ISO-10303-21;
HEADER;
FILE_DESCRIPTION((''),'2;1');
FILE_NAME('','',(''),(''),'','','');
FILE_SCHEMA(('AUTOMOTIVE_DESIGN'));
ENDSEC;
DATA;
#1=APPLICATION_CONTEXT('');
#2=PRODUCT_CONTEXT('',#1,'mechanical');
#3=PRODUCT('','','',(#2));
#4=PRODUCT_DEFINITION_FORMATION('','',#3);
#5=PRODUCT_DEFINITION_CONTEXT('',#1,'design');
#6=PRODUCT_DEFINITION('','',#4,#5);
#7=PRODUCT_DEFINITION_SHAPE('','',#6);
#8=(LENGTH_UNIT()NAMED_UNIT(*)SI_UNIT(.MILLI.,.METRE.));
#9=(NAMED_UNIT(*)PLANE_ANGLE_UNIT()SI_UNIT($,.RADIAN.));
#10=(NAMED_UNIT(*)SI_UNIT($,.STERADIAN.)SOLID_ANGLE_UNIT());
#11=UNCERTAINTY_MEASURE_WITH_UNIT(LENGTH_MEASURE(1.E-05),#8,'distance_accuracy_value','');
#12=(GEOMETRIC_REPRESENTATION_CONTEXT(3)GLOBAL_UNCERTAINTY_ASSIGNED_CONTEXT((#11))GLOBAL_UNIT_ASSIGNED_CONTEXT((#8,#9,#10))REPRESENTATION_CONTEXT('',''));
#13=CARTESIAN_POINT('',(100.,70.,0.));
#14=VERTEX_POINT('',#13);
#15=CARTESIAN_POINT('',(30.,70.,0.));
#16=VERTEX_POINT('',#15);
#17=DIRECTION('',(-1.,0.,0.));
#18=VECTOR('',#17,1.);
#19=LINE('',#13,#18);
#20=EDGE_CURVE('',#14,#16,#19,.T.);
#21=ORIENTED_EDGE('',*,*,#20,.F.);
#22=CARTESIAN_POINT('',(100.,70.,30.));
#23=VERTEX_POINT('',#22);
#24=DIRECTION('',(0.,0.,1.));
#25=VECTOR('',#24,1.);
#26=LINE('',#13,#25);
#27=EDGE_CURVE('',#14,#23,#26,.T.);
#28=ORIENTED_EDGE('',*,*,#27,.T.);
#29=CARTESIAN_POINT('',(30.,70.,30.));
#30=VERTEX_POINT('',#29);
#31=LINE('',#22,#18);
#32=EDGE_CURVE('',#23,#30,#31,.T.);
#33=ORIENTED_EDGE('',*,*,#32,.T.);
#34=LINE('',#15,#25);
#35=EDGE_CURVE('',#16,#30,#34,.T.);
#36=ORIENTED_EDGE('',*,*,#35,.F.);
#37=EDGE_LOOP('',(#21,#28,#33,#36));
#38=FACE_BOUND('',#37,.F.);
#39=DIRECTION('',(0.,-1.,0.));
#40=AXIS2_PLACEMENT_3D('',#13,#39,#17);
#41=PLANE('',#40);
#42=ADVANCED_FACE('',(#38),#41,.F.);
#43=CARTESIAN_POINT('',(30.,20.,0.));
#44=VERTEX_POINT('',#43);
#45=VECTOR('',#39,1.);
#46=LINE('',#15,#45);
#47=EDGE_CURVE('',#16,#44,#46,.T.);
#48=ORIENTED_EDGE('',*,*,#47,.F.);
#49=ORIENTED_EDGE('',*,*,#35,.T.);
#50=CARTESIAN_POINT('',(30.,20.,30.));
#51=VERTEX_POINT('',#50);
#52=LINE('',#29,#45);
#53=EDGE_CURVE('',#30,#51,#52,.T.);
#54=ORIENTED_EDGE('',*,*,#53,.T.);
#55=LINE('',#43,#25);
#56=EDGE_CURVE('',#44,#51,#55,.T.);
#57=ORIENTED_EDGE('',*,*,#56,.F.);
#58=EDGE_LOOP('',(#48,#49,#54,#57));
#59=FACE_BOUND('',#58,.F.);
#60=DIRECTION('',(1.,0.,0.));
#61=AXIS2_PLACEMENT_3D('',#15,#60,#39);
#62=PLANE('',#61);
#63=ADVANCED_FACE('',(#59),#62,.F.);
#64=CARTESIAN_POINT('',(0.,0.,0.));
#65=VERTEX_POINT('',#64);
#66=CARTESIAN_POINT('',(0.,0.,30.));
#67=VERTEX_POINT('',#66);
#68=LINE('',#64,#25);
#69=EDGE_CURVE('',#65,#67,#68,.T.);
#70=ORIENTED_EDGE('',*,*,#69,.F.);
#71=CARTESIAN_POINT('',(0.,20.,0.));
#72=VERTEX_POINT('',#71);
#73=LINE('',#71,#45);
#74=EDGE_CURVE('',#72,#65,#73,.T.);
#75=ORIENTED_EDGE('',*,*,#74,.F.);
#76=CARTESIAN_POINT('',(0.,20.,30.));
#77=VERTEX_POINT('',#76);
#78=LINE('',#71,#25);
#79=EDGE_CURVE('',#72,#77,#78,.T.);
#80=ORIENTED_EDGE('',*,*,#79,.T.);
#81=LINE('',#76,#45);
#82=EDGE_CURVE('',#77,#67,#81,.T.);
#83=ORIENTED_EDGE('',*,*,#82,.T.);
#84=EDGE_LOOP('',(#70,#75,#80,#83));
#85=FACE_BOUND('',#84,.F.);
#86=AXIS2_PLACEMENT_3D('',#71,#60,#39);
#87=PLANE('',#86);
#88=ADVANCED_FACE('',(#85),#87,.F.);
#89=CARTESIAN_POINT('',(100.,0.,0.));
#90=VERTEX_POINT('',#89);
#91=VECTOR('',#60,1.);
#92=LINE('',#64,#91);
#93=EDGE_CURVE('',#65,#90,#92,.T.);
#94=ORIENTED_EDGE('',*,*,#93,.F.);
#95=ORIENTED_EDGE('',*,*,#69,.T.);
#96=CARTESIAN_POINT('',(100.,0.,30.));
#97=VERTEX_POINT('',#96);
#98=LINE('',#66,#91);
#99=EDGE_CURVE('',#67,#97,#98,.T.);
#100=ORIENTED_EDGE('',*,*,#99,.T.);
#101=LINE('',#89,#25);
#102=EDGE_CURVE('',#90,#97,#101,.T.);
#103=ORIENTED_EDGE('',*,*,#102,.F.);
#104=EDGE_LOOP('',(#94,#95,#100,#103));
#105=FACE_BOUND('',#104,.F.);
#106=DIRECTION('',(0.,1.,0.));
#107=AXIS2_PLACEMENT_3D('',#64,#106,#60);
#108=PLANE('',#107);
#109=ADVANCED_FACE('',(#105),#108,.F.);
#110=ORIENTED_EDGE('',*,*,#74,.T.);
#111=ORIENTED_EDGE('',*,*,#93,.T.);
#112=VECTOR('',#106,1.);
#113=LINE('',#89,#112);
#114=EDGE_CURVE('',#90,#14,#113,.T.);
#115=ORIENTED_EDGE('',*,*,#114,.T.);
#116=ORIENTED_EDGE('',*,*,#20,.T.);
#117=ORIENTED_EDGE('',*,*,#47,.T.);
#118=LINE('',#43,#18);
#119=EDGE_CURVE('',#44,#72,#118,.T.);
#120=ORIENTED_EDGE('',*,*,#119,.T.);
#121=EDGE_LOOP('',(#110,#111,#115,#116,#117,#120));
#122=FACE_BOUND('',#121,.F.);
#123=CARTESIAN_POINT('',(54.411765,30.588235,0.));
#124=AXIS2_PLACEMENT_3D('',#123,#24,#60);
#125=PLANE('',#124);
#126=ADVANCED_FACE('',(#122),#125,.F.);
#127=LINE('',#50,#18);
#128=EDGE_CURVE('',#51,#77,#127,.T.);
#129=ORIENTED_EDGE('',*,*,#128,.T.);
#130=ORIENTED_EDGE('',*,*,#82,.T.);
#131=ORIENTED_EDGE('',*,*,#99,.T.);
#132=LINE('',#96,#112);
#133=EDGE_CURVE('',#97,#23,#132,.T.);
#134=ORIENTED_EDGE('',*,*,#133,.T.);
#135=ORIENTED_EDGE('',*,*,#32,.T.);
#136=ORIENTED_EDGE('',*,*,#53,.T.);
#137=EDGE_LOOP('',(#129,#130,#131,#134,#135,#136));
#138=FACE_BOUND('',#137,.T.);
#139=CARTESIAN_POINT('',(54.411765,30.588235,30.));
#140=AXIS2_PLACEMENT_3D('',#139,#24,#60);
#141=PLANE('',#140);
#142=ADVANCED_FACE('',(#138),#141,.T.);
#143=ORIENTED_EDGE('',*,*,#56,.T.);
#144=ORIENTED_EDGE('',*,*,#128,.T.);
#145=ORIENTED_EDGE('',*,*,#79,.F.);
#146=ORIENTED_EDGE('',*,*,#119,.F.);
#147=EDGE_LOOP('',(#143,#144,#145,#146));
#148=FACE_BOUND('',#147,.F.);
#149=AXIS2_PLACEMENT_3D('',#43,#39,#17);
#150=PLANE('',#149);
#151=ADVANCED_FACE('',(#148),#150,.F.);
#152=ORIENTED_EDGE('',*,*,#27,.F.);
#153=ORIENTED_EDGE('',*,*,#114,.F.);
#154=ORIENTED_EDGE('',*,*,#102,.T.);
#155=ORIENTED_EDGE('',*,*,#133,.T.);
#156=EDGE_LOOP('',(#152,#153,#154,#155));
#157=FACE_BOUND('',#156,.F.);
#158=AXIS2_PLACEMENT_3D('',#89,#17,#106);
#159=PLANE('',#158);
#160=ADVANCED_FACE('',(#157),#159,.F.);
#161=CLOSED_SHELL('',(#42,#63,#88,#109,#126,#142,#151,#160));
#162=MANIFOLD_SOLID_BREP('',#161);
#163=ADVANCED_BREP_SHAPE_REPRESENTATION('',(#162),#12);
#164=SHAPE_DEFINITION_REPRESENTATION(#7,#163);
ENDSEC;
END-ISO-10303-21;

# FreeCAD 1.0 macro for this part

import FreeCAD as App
import Part
import Sketcher

V = App.Vector
Q = App.Units.Quantity

doc = App.newDocument("Part")
body = doc.addObject("PartDesign::Body", "Body")

# Sketch on XY plane
sketch1 = doc.addObject("Sketcher::SketchObject", "Sketch")
body.addObject(sketch1)
sketch1.AttachmentSupport = (doc.XY_Plane, [""])
sketch1.MapMode = "FlatFace"
sketch1.addGeometry(Part.LineSegment(V(0, 0, 0), V(100, 0, 0)), False)
sketch1.addGeometry(Part.LineSegment(V(100, 0, 0), V(100, 70, 0)), False)
sketch1.addGeometry(Part.LineSegment(V(100, 70, 0), V(30, 70, 0)), False)
sketch1.addGeometry(Part.LineSegment(V(30, 70, 0), V(30, 20, 0)), False)
sketch1.addGeometry(Part.LineSegment(V(30, 20, 0), V(0, 20, 0)), False)
sketch1.addGeometry(Part.LineSegment(V(0, 20, 0), V(0, 0, 0)), False)
sketch1.addConstraint(Sketcher.Constraint("Coincident", 0, 2, 1, 1))
sketch1.addConstraint(Sketcher.Constraint("Coincident", 1, 2, 2, 1))
sketch1.addConstraint(Sketcher.Constraint("Coincident", 2, 2, 3, 1))
sketch1.addConstraint(Sketcher.Constraint("Coincident", 3, 2, 4, 1))
sketch1.addConstraint(Sketcher.Constraint("Coincident", 4, 2, 5, 1))
sketch1.addConstraint(Sketcher.Constraint("Coincident", 5, 2, 0, 1))
sketch1.addConstraint(Sketcher.Constraint("Horizontal", 0))
sketch1.addConstraint(Sketcher.Constraint("Vertical", 1))
sketch1.addConstraint(Sketcher.Constraint("Horizontal", 2))
sketch1.addConstraint(Sketcher.Constraint("Vertical", 3))
sketch1.addConstraint(Sketcher.Constraint("Horizontal", 4))
sketch1.addConstraint(Sketcher.Constraint("Vertical", 5))
sketch1.addConstraint(Sketcher.Constraint("Coincident", 5, 2, -1, 1))
sketch1.addConstraint(Sketcher.Constraint("Equal", 2, 1))
sketch1.addConstraint(Sketcher.Constraint("DistanceX", 0, 1, 0, 2, Q("100 mm")))
sketch1.addConstraint(Sketcher.Constraint("DistanceX", 2, 2, 2, 1, Q("70 mm")))
sketch1.addConstraint(Sketcher.Constraint("DistanceY", 3, 2, 3, 1, Q("50 mm")))
pad1 = doc.addObject("PartDesign::Pad", "Pad")
body.addObject(pad1)
pad1.Profile = sketch1
pad1.Length = 30

doc.recompute()
